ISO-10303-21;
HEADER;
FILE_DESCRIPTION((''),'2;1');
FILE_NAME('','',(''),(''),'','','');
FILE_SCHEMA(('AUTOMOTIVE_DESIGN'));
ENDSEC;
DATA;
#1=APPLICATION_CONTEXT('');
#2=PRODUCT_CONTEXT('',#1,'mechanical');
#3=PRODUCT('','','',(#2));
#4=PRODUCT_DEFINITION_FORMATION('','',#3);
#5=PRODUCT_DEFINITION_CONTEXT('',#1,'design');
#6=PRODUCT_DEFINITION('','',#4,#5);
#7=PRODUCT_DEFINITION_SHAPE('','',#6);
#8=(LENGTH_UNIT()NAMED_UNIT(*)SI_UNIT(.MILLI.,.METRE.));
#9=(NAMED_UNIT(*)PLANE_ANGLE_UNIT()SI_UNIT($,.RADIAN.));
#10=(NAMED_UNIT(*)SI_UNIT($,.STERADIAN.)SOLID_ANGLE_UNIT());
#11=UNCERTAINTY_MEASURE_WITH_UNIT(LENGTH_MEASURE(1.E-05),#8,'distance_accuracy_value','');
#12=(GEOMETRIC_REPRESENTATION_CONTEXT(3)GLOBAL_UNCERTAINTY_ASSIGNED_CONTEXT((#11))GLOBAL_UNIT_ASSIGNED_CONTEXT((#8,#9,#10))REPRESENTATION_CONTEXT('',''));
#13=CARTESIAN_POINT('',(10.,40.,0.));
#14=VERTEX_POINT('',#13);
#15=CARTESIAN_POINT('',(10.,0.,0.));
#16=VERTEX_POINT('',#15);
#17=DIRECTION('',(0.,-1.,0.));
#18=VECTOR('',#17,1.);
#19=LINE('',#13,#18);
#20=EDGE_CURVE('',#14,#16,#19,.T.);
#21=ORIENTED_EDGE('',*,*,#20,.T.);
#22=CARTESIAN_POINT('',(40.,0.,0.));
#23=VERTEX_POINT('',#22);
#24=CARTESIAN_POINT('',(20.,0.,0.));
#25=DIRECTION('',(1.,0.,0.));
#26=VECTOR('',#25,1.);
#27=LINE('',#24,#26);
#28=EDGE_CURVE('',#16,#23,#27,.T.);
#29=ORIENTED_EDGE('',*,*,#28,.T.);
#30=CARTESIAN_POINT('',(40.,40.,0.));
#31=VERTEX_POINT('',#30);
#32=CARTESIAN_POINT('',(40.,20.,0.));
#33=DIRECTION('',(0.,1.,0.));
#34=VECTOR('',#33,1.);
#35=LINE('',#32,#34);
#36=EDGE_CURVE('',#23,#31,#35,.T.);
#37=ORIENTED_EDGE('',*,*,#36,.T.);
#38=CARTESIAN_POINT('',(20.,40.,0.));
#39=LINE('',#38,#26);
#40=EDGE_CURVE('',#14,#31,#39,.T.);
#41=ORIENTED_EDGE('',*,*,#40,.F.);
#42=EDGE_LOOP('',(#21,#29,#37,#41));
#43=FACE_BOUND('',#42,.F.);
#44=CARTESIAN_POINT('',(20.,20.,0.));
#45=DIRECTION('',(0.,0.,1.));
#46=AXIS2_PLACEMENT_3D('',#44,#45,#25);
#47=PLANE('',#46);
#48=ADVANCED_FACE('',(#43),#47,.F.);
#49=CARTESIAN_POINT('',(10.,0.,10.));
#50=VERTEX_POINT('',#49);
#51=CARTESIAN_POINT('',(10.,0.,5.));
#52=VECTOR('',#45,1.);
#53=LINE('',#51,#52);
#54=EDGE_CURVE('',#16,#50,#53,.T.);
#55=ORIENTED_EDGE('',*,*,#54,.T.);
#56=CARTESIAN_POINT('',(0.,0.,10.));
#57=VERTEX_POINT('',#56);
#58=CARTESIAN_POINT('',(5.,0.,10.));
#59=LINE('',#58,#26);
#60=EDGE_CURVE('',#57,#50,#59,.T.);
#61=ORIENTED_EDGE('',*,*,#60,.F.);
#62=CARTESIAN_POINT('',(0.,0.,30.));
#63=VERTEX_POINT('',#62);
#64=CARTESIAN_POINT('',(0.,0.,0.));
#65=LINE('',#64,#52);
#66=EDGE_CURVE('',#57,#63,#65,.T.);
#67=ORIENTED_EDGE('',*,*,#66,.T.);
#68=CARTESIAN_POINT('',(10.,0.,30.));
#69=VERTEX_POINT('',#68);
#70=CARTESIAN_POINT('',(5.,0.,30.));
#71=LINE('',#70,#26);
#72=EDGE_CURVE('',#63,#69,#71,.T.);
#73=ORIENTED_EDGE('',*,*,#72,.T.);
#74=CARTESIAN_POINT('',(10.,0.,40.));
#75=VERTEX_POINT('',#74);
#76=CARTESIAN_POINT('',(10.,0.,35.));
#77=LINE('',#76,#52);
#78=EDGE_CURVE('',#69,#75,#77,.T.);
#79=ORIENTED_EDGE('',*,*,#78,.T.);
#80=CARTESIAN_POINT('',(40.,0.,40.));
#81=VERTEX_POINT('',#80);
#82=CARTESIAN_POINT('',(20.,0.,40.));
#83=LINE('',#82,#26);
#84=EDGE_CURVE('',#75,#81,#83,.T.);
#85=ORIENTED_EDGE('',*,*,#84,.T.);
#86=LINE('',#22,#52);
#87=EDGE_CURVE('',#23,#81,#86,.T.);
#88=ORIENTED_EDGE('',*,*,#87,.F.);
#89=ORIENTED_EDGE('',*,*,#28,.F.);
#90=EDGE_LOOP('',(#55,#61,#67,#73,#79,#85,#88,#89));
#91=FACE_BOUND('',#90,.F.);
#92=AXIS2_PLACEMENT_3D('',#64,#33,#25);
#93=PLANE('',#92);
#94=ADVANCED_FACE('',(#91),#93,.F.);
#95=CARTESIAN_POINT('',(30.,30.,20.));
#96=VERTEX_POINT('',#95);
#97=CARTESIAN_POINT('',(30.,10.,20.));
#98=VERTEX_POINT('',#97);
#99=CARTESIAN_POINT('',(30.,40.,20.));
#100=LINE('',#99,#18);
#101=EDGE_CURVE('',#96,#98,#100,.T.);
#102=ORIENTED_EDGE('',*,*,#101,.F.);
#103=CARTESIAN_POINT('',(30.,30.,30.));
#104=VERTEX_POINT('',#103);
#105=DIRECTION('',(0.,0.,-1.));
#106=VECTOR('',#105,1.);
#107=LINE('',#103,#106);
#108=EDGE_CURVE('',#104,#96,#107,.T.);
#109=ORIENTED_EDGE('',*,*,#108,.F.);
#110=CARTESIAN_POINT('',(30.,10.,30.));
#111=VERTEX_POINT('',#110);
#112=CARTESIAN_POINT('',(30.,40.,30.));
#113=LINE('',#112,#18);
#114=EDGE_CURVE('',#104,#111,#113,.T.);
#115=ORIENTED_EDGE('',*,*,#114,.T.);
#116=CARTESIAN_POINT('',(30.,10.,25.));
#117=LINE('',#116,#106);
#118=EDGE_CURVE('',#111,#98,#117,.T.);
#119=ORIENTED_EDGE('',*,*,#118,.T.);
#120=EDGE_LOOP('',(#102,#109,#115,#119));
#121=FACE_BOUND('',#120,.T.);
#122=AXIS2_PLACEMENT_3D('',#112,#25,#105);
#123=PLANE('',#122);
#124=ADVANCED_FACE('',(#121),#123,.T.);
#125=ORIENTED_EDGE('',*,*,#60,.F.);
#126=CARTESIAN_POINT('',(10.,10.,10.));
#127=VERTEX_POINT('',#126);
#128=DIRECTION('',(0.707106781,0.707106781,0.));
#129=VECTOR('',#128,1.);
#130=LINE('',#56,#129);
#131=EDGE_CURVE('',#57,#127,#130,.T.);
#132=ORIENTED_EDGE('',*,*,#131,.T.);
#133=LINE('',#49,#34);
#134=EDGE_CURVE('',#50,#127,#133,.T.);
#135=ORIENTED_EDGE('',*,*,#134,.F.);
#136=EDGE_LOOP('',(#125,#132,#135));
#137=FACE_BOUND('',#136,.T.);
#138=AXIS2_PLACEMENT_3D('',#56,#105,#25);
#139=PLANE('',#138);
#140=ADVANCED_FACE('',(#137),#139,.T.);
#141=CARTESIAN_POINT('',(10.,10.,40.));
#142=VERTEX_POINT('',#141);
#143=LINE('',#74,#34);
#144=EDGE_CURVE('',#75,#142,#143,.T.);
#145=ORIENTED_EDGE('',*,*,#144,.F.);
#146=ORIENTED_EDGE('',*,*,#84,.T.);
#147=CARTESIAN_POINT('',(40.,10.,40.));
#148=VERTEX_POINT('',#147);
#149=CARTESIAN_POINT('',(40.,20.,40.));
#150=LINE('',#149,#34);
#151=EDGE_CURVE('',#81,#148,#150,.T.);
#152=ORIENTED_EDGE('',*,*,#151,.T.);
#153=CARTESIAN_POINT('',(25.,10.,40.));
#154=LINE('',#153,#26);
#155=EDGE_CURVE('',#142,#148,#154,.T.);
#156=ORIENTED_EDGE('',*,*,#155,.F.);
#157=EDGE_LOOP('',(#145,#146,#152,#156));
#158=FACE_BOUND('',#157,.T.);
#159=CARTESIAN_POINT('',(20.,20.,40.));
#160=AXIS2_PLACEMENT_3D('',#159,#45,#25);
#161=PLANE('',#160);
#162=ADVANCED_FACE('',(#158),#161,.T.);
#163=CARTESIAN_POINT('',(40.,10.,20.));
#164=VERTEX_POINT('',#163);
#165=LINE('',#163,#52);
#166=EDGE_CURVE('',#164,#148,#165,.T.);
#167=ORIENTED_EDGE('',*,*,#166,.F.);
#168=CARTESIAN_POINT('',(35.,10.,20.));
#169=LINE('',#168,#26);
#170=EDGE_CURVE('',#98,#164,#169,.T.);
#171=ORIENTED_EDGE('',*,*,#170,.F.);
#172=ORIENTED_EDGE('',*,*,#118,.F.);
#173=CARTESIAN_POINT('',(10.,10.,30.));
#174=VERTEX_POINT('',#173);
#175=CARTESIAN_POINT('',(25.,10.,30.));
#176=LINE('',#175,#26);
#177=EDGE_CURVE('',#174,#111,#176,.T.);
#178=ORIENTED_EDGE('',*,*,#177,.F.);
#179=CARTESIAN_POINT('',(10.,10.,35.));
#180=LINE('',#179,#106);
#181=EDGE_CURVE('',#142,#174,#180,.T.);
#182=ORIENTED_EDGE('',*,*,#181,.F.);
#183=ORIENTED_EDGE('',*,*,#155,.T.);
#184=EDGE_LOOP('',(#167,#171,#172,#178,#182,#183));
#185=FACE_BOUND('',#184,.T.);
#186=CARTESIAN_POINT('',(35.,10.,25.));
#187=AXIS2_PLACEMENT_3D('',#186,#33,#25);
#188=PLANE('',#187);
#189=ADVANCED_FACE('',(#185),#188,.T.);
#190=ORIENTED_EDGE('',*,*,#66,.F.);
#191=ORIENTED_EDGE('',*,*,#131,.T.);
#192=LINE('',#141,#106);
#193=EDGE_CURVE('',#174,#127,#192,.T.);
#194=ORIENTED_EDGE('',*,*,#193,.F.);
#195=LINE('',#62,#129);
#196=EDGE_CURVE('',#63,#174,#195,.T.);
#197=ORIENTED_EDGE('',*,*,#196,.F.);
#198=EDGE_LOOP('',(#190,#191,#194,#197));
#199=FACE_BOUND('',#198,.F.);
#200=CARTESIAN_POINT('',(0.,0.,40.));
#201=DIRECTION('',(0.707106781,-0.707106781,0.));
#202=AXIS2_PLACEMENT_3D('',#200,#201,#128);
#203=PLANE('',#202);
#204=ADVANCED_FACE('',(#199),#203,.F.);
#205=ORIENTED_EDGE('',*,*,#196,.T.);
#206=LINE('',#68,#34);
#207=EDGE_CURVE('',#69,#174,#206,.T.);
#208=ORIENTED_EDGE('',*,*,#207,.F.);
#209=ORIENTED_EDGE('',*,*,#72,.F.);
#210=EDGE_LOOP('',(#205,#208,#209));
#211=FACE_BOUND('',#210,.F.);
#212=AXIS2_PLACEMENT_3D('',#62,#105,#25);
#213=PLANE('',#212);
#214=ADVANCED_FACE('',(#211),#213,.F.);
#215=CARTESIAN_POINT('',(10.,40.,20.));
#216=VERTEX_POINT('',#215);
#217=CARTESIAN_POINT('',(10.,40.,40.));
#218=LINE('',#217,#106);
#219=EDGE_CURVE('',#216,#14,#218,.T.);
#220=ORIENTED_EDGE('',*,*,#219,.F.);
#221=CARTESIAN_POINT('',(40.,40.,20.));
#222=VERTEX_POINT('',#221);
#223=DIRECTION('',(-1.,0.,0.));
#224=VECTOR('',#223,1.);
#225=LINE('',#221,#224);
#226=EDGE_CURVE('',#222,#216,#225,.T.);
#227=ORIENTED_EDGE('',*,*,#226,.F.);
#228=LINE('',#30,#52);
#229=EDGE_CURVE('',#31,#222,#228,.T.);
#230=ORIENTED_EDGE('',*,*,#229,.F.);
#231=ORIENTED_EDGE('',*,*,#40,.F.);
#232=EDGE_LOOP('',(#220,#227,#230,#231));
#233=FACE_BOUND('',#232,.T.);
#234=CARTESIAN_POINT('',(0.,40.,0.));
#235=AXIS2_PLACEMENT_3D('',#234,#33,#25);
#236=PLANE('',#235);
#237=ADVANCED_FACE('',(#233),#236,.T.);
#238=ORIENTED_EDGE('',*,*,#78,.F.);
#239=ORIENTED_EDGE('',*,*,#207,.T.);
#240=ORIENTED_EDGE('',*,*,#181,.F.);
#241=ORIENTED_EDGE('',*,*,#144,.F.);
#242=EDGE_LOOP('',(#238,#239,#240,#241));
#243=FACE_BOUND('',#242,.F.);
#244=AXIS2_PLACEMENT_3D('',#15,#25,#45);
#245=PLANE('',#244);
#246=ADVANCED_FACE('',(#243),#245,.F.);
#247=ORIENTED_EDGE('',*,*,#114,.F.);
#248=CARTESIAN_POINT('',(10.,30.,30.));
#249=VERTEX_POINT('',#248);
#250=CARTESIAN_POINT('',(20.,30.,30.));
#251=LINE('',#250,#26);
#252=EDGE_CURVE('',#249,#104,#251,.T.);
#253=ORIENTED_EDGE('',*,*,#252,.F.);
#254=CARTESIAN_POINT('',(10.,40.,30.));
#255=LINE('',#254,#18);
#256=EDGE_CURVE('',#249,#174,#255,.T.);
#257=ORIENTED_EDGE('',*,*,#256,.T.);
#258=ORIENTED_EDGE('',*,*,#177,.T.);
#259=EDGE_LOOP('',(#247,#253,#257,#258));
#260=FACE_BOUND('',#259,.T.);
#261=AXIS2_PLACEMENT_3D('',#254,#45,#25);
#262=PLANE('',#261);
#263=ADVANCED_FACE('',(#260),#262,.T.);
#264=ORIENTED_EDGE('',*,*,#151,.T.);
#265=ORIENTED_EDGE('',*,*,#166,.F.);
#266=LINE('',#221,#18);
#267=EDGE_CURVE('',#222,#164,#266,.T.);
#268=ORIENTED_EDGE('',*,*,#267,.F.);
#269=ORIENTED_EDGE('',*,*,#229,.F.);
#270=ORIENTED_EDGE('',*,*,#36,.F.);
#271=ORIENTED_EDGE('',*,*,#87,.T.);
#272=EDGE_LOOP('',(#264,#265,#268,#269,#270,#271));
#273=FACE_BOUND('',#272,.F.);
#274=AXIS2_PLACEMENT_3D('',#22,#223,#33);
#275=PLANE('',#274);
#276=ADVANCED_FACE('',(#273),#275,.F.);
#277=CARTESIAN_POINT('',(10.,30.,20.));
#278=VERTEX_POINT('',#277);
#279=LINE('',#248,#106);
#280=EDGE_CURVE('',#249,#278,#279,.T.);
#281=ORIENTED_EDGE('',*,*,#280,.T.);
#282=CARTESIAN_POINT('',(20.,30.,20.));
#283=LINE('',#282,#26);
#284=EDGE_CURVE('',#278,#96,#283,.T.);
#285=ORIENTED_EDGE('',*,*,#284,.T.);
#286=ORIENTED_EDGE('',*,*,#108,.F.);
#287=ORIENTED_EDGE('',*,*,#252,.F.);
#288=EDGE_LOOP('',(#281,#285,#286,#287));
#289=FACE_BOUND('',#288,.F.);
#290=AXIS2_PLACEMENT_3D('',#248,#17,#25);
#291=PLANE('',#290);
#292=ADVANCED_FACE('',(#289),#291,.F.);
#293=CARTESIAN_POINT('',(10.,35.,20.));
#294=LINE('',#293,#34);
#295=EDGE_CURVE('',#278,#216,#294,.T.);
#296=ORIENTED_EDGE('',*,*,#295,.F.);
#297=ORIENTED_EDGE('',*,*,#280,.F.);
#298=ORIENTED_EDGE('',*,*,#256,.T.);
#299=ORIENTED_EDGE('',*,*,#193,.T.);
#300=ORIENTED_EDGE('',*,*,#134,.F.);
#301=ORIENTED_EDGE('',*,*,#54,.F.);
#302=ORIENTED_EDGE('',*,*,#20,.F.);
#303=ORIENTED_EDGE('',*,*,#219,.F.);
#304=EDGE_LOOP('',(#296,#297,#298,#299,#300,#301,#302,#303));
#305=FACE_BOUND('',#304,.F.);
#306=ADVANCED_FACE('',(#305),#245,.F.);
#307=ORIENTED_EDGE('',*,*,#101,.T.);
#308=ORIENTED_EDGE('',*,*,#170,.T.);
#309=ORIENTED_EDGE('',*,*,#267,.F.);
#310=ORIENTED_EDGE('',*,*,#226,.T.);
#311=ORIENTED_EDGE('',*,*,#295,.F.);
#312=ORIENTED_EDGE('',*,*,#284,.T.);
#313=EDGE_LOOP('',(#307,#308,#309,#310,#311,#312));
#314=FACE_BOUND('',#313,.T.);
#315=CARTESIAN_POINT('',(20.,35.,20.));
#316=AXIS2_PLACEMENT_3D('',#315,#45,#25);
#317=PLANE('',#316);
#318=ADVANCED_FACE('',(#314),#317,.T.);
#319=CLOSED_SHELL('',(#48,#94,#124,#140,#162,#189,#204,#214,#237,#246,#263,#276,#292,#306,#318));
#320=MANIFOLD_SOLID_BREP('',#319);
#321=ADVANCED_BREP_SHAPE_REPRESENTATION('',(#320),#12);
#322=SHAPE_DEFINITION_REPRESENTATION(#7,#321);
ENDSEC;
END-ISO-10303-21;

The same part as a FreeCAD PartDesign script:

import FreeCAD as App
import Part
import Sketcher

V = App.Vector
Q = App.Units.Quantity


def add_polygon(sketch, points):
    """Adds a closed chain of lines whose ends are joined by coincident constraints."""
    first, n = sketch.GeometryCount, len(points)
    for a, b in zip(points, points[1:] + points[:1]):
        sketch.addGeometry(Part.LineSegment(App.Vector(*a, 0), App.Vector(*b, 0)), False)
    for i in range(n):
        sketch.addConstraint(Sketcher.Constraint("Coincident", first + i, 2, first + (i + 1) % n, 1))

doc = App.newDocument("Part")
params = doc.addObject("Spreadsheet::Sheet", "Params")
for row, (alias, value) in enumerate([
    ("sketch1_width", "40 mm"),
    ("pad1_length", "40 mm"),
    ("sketch2_width", "10 mm"),
    ("sketch2_height", "40 mm"),
    ("sketch2_height2", "30 mm"),
    ("pocket1_length", "40 mm"),
    ("sketch3_width", "10 mm"),
    ("pocket2_length", "40 mm"),
    ("sketch4_width", "30 mm"),
    ("sketch4_height", "10 mm"),
    ("pocket3_length", "30 mm"),
    ("sketch5_width", "10 mm"),
    ("pocket4_length", "30 mm"),
    ("sketch6_width", "20 mm"),
    ("sketch6_height", "10 mm"),
    ("pocket5_length", "10 mm"),
], start=1):
    params.set(f"A{row}", alias)
    params.set(f"B{row}", "=" + value)
    params.setAlias(f"B{row}", alias)

body = doc.addObject("PartDesign::Body", "Body")

# Sketch on XY plane
sketch1 = body.newObject("Sketcher::SketchObject", "Sketch")
sketch1.AttachmentSupport = (doc.getObject("XY_Plane"), [""])
sketch1.MapMode = "FlatFace"
add_polygon(sketch1, [(0, 40), (0, 0), (40, 0), (40, 40)])  # lines 0-3
sketch1.addConstraint(Sketcher.Constraint("Vertical", 0))
sketch1.addConstraint(Sketcher.Constraint("Horizontal", 1))
sketch1.addConstraint(Sketcher.Constraint("Vertical", 2))
sketch1.addConstraint(Sketcher.Constraint("Horizontal", 3))
sketch1.addConstraint(Sketcher.Constraint("Coincident", 0, 2, -1, 1))
sketch1.addConstraint(Sketcher.Constraint("Equal", 3, 0))
sketch1.addConstraint(Sketcher.Constraint("DistanceX", 1, 1, 1, 2, Q("40 mm")))
sketch1.setExpression("Constraints[10]", "Params.sketch1_width")
pad1 = body.newObject("PartDesign::Pad", "Pad")
pad1.Profile = sketch1
pad1.setExpression("Length", "Params.pad1_length")

# Sketch on XY plane
sketch2 = body.newObject("Sketcher::SketchObject", "Sketch001")
sketch2.AttachmentSupport = (doc.getObject("XY_Plane"), [""])
sketch2.MapMode = "FlatFace"
sketch2.AttachmentOffset = App.Placement(V(0, 0, 40), App.Rotation())
add_polygon(sketch2, [(0, 40), (0, 0), (10, 10), (10, 40)])  # lines 0-3
sketch2.addConstraint(Sketcher.Constraint("Vertical", 0))
sketch2.addConstraint(Sketcher.Constraint("Vertical", 2))
sketch2.addConstraint(Sketcher.Constraint("Horizontal", 3))
sketch2.addConstraint(Sketcher.Constraint("Coincident", 0, 2, -1, 1))
sketch2.addConstraint(Sketcher.Constraint("DistanceX", 3, 2, 3, 1, Q("10 mm")))
sketch2.addConstraint(Sketcher.Constraint("DistanceY", 0, 2, 0, 1, Q("40 mm")))
sketch2.addConstraint(Sketcher.Constraint("DistanceY", 2, 1, 2, 2, Q("30 mm")))
sketch2.setExpression("Constraints[8]", "Params.sketch2_width")
sketch2.setExpression("Constraints[9]", "Params.sketch2_height")
sketch2.setExpression("Constraints[10]", "Params.sketch2_height2")
pocket1 = body.newObject("PartDesign::Pocket", "Pocket")
pocket1.Profile = sketch2
pocket1.setExpression("Length", "Params.pocket1_length")

# Sketch on XZ plane
sketch3 = body.newObject("Sketcher::SketchObject", "Sketch002")
sketch3.AttachmentSupport = (doc.getObject("XZ_Plane"), [""])
sketch3.MapMode = "FlatFace"
add_polygon(sketch3, [(0, 10), (0, 0), (10, 0), (10, 10)])  # lines 0-3
add_polygon(sketch3, [(0, 40), (0, 30), (10, 30), (10, 40)])  # lines 4-7
sketch3.addConstraint(Sketcher.Constraint("Vertical", 0))
sketch3.addConstraint(Sketcher.Constraint("Horizontal", 1))
sketch3.addConstraint(Sketcher.Constraint("Vertical", 2))
sketch3.addConstraint(Sketcher.Constraint("Horizontal", 3))
sketch3.addConstraint(Sketcher.Constraint("Vertical", 4))
sketch3.addConstraint(Sketcher.Constraint("Horizontal", 5))
sketch3.addConstraint(Sketcher.Constraint("Vertical", 6))
sketch3.addConstraint(Sketcher.Constraint("Horizontal", 7))
sketch3.addConstraint(Sketcher.Constraint("Coincident", 0, 2, -1, 1))
sketch3.addConstraint(Sketcher.Constraint("PointOnObject", 4, 2, -2))
sketch3.addConstraint(Sketcher.Constraint("Vertical", 2, 2, 5, 2))
sketch3.addConstraint(Sketcher.Constraint("Equal", 7, 0))
sketch3.addConstraint(Sketcher.Constraint("Equal", 2, 4))
sketch3.addConstraint(Sketcher.Constraint("DistanceX", 1, 1, 1, 2, Q("10 mm")))
sketch3.addConstraint(Sketcher.Constraint("DistanceY", -1, 1, 4, 2, Q("30 mm")))
sketch3.setExpression("Constraints[21]", "Params.sketch3_width")
pocket2 = body.newObject("PartDesign::Pocket", "Pocket001")
pocket2.Profile = sketch3
pocket2.setExpression("Length", "Params.pocket2_length")

# Sketch on XZ plane
sketch4 = body.newObject("Sketcher::SketchObject", "Sketch003")
sketch4.AttachmentSupport = (doc.getObject("XZ_Plane"), [""])
sketch4.MapMode = "FlatFace"
sketch4.AttachmentOffset = App.Placement(V(0, 0, -40), App.Rotation())
add_polygon(sketch4, [(10, 30), (10, 40), (40, 40), (40, 30)])  # lines 0-3
sketch4.addConstraint(Sketcher.Constraint("Vertical", 0))
sketch4.addConstraint(Sketcher.Constraint("Horizontal", 1))
sketch4.addConstraint(Sketcher.Constraint("Vertical", 2))
sketch4.addConstraint(Sketcher.Constraint("Horizontal", 3))
sketch4.addConstraint(Sketcher.Constraint("DistanceX", 1, 1, 1, 2, Q("30 mm")))
sketch4.addConstraint(Sketcher.Constraint("DistanceY", 0, 1, 0, 2, Q("10 mm")))
sketch4.addConstraint(Sketcher.Constraint("DistanceX", -1, 1, 0, 2, Q("10 mm")))
sketch4.addConstraint(Sketcher.Constraint("DistanceY", -1, 1, 0, 2, Q("40 mm")))
sketch4.setExpression("Constraints[8]", "Params.sketch4_width")
sketch4.setExpression("Constraints[9]", "Params.sketch4_height")
pocket3 = body.newObject("PartDesign::Pocket", "Pocket002")
pocket3.Profile = sketch4
pocket3.setExpression("Length", "Params.pocket3_length")
pocket3.Reversed = True

# Sketch on XZ plane
sketch5 = body.newObject("Sketcher::SketchObject", "Sketch004")
sketch5.AttachmentSupport = (doc.getObject("XZ_Plane"), [""])
sketch5.MapMode = "FlatFace"
sketch5.AttachmentOffset = App.Placement(V(0, 0, -40), App.Rotation())
add_polygon(sketch5, [(30, 20), (30, 30), (40, 30), (40, 20)])  # lines 0-3
sketch5.addConstraint(Sketcher.Constraint("Vertical", 0))
sketch5.addConstraint(Sketcher.Constraint("Horizontal", 1))
sketch5.addConstraint(Sketcher.Constraint("Vertical", 2))
sketch5.addConstraint(Sketcher.Constraint("Horizontal", 3))
sketch5.addConstraint(Sketcher.Constraint("Equal", 3, 0))
sketch5.addConstraint(Sketcher.Constraint("DistanceX", 1, 1, 1, 2, Q("10 mm")))
sketch5.addConstraint(Sketcher.Constraint("DistanceX", -1, 1, 0, 2, Q("30 mm")))
sketch5.addConstraint(Sketcher.Constraint("DistanceY", -1, 1, 0, 2, Q("30 mm")))
sketch5.setExpression("Constraints[9]", "Params.sketch5_width")
pocket4 = body.newObject("PartDesign::Pocket", "Pocket003")
pocket4.Profile = sketch5
pocket4.setExpression("Length", "Params.pocket4_length")
pocket4.Reversed = True

# Sketch on XY plane
sketch6 = body.newObject("Sketcher::SketchObject", "Sketch005")
sketch6.AttachmentSupport = (doc.getObject("XY_Plane"), [""])
sketch6.MapMode = "FlatFace"
sketch6.AttachmentOffset = App.Placement(V(0, 0, 30), App.Rotation())
add_polygon(sketch6, [(10, 40), (10, 30), (30, 30), (30, 40)])  # lines 0-3
sketch6.addConstraint(Sketcher.Constraint("Vertical", 0))
sketch6.addConstraint(Sketcher.Constraint("Horizontal", 1))
sketch6.addConstraint(Sketcher.Constraint("Vertical", 2))
sketch6.addConstraint(Sketcher.Constraint("Horizontal", 3))
sketch6.addConstraint(Sketcher.Constraint("DistanceX", 1, 1, 1, 2, Q("20 mm")))
sketch6.addConstraint(Sketcher.Constraint("DistanceY", 0, 2, 0, 1, Q("10 mm")))
sketch6.addConstraint(Sketcher.Constraint("DistanceX", -1, 1, 0, 2, Q("10 mm")))
sketch6.addConstraint(Sketcher.Constraint("DistanceY", -1, 1, 0, 2, Q("30 mm")))
sketch6.setExpression("Constraints[8]", "Params.sketch6_width")
sketch6.setExpression("Constraints[9]", "Params.sketch6_height")
pocket5 = body.newObject("PartDesign::Pocket", "Pocket004")
pocket5.Profile = sketch6
pocket5.setExpression("Length", "Params.pocket5_length")

doc.recompute()
